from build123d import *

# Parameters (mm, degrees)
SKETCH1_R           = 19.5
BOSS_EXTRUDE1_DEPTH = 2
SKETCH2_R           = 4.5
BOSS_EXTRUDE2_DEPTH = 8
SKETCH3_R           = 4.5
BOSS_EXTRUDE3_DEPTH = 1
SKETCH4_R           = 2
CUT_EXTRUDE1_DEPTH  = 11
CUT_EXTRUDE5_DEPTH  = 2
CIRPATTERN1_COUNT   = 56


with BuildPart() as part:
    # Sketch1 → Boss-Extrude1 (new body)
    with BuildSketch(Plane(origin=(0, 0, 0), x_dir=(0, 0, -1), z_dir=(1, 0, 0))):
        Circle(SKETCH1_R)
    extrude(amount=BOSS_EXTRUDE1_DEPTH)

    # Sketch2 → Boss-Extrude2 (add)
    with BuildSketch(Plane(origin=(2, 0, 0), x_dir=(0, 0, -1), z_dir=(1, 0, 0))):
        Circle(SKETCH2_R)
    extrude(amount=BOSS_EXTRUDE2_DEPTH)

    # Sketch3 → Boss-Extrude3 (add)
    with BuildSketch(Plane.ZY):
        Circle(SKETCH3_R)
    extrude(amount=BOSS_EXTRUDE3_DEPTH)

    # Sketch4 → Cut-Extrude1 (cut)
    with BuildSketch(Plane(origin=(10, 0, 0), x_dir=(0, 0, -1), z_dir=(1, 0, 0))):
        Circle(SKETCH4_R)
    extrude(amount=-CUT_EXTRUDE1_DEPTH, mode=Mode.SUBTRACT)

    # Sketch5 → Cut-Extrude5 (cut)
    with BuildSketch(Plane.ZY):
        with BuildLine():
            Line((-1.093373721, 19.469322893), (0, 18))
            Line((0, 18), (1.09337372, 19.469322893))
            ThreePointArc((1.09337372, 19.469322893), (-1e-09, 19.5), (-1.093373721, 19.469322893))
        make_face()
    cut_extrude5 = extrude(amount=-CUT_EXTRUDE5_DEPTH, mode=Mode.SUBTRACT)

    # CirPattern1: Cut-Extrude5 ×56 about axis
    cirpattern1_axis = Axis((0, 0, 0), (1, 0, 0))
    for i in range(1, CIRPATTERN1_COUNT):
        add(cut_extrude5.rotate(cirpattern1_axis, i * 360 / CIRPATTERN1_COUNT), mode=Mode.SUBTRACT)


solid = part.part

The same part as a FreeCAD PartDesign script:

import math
import FreeCAD as App
import Part
import Sketcher

doc = App.newDocument("Part")
body = doc.addObject("PartDesign::Body", "Body")

sketch1 = body.newObject("Sketcher::SketchObject", "Sketch")
sketch1.AttachmentSupport = (doc.getObject("YZ_Plane"), [""])
sketch1.MapMode = "FlatFace"
sketch1.addGeometry(Part.Circle(App.Vector(0, 0, 0), App.Vector(0, 0, 1), 20), False)
sketch1.addConstraint(Sketcher.Constraint("Coincident", 0, 3, -1, 1))
sketch1.addConstraint(Sketcher.Constraint("Diameter", 0, 39.0))
pad1 = body.newObject("PartDesign::Pad", "Pad")
pad1.Profile = sketch1
pad1.Length = 2

sketch2 = body.newObject("Sketcher::SketchObject", "Sketch001")
sketch2.AttachmentSupport = (doc.getObject("YZ_Plane"), [""])
sketch2.MapMode = "FlatFace"
sketch2.AttachmentOffset = App.Placement(App.Vector(0, 0, 2), App.Rotation())
sketch2.addGeometry(Part.Circle(App.Vector(0, 0, 0), App.Vector(0, 0, 1), 4.5), False)
sketch2.addConstraint(Sketcher.Constraint("Coincident", 0, 3, -1, 1))
sketch2.addConstraint(Sketcher.Constraint("Diameter", 0, 9.0))
pad2 = body.newObject("PartDesign::Pad", "Pad001")
pad2.Profile = sketch2
pad2.Length = 8

sketch3 = body.newObject("Sketcher::SketchObject", "Sketch002")
sketch3.AttachmentSupport = (doc.getObject("YZ_Plane"), [""])
sketch3.MapMode = "FlatFace"
sketch3.addGeometry(Part.Circle(App.Vector(0, 0, 0), App.Vector(0, 0, 1), 4.5), False)
sketch3.addConstraint(Sketcher.Constraint("Coincident", 0, 3, -1, 1))
sketch3.addConstraint(Sketcher.Constraint("Diameter", 0, 9.0))
pad3 = body.newObject("PartDesign::Pad", "Pad002")
pad3.Profile = sketch3
pad3.Length = 1
pad3.Reversed = True

sketch4 = body.newObject("Sketcher::SketchObject", "Sketch003")
sketch4.AttachmentSupport = (doc.getObject("YZ_Plane"), [""])
sketch4.MapMode = "FlatFace"
sketch4.AttachmentOffset = App.Placement(App.Vector(0, 0, 10), App.Rotation())
sketch4.addGeometry(Part.Circle(App.Vector(0, 0, 0), App.Vector(0, 0, 1), 2), False)
sketch4.addConstraint(Sketcher.Constraint("Coincident", 0, 3, -1, 1))
sketch4.addConstraint(Sketcher.Constraint("Diameter", 0, 4.0))
pocket1 = body.newObject("PartDesign::Pocket", "Pocket")
pocket1.Profile = sketch4
pocket1.Length = 11

sketch5 = body.newObject("Sketcher::SketchObject", "Sketch004")
sketch5.AttachmentSupport = (doc.getObject("YZ_Plane"), [""])
sketch5.MapMode = "FlatFace"
sketch5.addGeometry(Part.LineSegment(App.Vector(19.5, -1.1, 0), App.Vector(18, 0, 0)), False)
sketch5.addGeometry(Part.LineSegment(App.Vector(18, 0, 0), App.Vector(19.5, 1.1, 0)), False)
sketch5.addGeometry(Part.ArcOfCircle(Part.Circle(App.Vector(0, 0, 0), App.Vector(0, 0, 1), 19.5), math.radians(-3.21), math.radians(3.21)), False)
sketch5.addConstraint(Sketcher.Constraint("Coincident", 0, 2, 1, 1))
sketch5.addConstraint(Sketcher.Constraint("Coincident", 1, 2, 2, 2))
sketch5.addConstraint(Sketcher.Constraint("Coincident", 2, 1, 0, 1))
sketch5.addConstraint(Sketcher.Constraint("Coincident", 2, 3, -1, 1))
sketch5.addConstraint(Sketcher.Constraint("PointOnObject", 0, 2, -1))
sketch5.addConstraint(Sketcher.Constraint("Vertical", 1, 2, 2, 1))
sketch5.addConstraint(Sketcher.Constraint("Radius", 2, 19.5))
sketch5.addConstraint(Sketcher.Constraint("DistanceX", -1, 1, 0, 2, 18.0))
sketch5.addConstraint(Sketcher.Constraint("Distance", 0, 1.831496))
pocket2 = body.newObject("PartDesign::Pocket", "Pocket001")
pocket2.Profile = sketch5
pocket2.Length = 2
pocket2.Reversed = True
doc.recompute()

polarpattern = body.newObject("PartDesign::PolarPattern", "PolarPattern")
polarpattern.Originals = [pocket2]
polarpattern.Axis = (doc.getObject("X_Axis"), [""])
polarpattern.Angle = 360
polarpattern.Occurrences = 56
body.Tip = polarpattern

doc.recompute()
